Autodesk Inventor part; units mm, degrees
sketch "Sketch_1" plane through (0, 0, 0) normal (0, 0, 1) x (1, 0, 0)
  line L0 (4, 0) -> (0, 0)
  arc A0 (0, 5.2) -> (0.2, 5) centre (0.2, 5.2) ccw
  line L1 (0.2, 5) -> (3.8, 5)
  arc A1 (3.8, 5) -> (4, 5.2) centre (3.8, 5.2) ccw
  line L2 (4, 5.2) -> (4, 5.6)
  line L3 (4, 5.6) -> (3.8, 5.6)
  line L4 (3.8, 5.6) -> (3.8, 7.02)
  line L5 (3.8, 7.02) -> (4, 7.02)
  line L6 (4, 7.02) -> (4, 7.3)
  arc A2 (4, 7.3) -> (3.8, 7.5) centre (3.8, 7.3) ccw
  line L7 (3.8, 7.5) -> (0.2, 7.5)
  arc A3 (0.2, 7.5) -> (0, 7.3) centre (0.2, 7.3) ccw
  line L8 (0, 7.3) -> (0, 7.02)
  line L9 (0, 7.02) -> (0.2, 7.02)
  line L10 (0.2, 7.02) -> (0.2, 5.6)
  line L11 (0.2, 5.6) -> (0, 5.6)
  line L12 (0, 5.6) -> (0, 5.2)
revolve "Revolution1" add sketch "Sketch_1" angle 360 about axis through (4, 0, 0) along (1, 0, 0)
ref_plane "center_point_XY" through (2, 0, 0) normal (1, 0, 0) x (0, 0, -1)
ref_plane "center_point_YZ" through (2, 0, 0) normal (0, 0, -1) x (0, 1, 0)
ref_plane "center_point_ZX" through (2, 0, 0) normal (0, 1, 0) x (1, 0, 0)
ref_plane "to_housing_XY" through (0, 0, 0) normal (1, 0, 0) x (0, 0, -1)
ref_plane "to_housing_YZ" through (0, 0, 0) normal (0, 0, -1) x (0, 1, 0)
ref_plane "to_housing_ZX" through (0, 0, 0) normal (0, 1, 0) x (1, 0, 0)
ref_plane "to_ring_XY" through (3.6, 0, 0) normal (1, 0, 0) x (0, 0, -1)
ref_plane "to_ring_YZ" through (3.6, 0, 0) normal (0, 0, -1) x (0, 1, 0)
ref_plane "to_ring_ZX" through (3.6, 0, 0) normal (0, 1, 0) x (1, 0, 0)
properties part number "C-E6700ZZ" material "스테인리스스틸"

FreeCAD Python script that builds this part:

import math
import FreeCAD as App
import Part
import Sketcher

doc = App.newDocument("Part")
params = doc.addObject("Spreadsheet::Sheet", "Params")
for row, (alias, value) in enumerate([
    ("sketch1_radius", "0.2 mm"),
    ("sketch1_width", "3.6 mm"),
    ("sketch1_height", "0.4 mm"),
    ("sketch1_height2", "1.42 mm"),
    ("sketch1_height3", "0.28 mm"),
    ("revolution_angle", "360 deg"),
], start=1):
    params.set(f"A{row}", alias)
    params.set(f"B{row}", "=" + value)
    params.setAlias(f"B{row}", alias)

body = doc.addObject("PartDesign::Body", "Body")

# Sketch on XY plane
sketch1 = body.newObject("Sketcher::SketchObject", "Sketch")
sketch1.AttachmentSupport = (doc.getObject("XY_Plane"), [""])
sketch1.MapMode = "FlatFace"
sketch1.addGeometry(Part.LineSegment(App.Vector(0, 5.6, 0), App.Vector(0, 5.2, 0)), False)
sketch1.addGeometry(Part.ArcOfCircle(Part.Circle(App.Vector(0.2, 5.2, 0), App.Vector(0, 0, 1), 0.2), math.radians(180), math.radians(270)), False)
sketch1.addGeometry(Part.LineSegment(App.Vector(0.2, 5, 0), App.Vector(3.8, 5, 0)), False)
sketch1.addGeometry(Part.ArcOfCircle(Part.Circle(App.Vector(3.8, 5.2, 0), App.Vector(0, 0, 1), 0.2), math.radians(-90), math.radians(0)), False)
sketch1.addGeometry(Part.LineSegment(App.Vector(4, 5.2, 0), App.Vector(4, 5.6, 0)), False)
sketch1.addGeometry(Part.LineSegment(App.Vector(4, 5.6, 0), App.Vector(3.8, 5.6, 0)), False)
sketch1.addGeometry(Part.LineSegment(App.Vector(3.8, 5.6, 0), App.Vector(3.8, 7.02, 0)), False)
sketch1.addGeometry(Part.LineSegment(App.Vector(3.8, 7.02, 0), App.Vector(4, 7.02, 0)), False)
sketch1.addGeometry(Part.LineSegment(App.Vector(4, 7.02, 0), App.Vector(4, 7.3, 0)), False)
sketch1.addGeometry(Part.ArcOfCircle(Part.Circle(App.Vector(3.8, 7.3, 0), App.Vector(0, 0, 1), 0.2), math.radians(0), math.radians(90)), False)
sketch1.addGeometry(Part.LineSegment(App.Vector(3.8, 7.5, 0), App.Vector(0.2, 7.5, 0)), False)
sketch1.addGeometry(Part.ArcOfCircle(Part.Circle(App.Vector(0.2, 7.3, 0), App.Vector(0, 0, 1), 0.2), math.radians(90), math.radians(180)), False)
sketch1.addGeometry(Part.LineSegment(App.Vector(0, 7.3, 0), App.Vector(0, 7.02, 0)), False)
sketch1.addGeometry(Part.LineSegment(App.Vector(0, 7.02, 0), App.Vector(0.2, 7.02, 0)), False)
sketch1.addGeometry(Part.LineSegment(App.Vector(0.2, 7.02, 0), App.Vector(0.2, 5.6, 0)), False)
sketch1.addGeometry(Part.LineSegment(App.Vector(0.2, 5.6, 0), App.Vector(0, 5.6, 0)), False)
sketch1.addConstraint(Sketcher.Constraint("Tangent", 0, 2, 1, 1))
sketch1.addConstraint(Sketcher.Constraint("Tangent", 1, 2, 2, 1))
sketch1.addConstraint(Sketcher.Constraint("Tangent", 2, 2, 3, 1))
sketch1.addConstraint(Sketcher.Constraint("Tangent", 3, 2, 4, 1))
sketch1.addConstraint(Sketcher.Constraint("Coincident", 4, 2, 5, 1))
sketch1.addConstraint(Sketcher.Constraint("Coincident", 5, 2, 6, 1))
sketch1.addConstraint(Sketcher.Constraint("Coincident", 6, 2, 7, 1))
sketch1.addConstraint(Sketcher.Constraint("Coincident", 7, 2, 8, 1))
sketch1.addConstraint(Sketcher.Constraint("Tangent", 8, 2, 9, 1))
sketch1.addConstraint(Sketcher.Constraint("Tangent", 9, 2, 10, 1))
sketch1.addConstraint(Sketcher.Constraint("Tangent", 10, 2, 11, 1))
sketch1.addConstraint(Sketcher.Constraint("Tangent", 11, 2, 12, 1))
sketch1.addConstraint(Sketcher.Constraint("Coincident", 12, 2, 13, 1))
sketch1.addConstraint(Sketcher.Constraint("Coincident", 13, 2, 14, 1))
sketch1.addConstraint(Sketcher.Constraint("Coincident", 14, 2, 15, 1))
sketch1.addConstraint(Sketcher.Constraint("Coincident", 15, 2, 0, 1))
sketch1.addConstraint(Sketcher.Constraint("Vertical", 0))
sketch1.addConstraint(Sketcher.Constraint("Horizontal", 2))
sketch1.addConstraint(Sketcher.Constraint("Vertical", 4))
sketch1.addConstraint(Sketcher.Constraint("Horizontal", 5))
sketch1.addConstraint(Sketcher.Constraint("Vertical", 6))
sketch1.addConstraint(Sketcher.Constraint("Horizontal", 7))
sketch1.addConstraint(Sketcher.Constraint("Vertical", 8))
sketch1.addConstraint(Sketcher.Constraint("Horizontal", 10))
sketch1.addConstraint(Sketcher.Constraint("Vertical", 12))
sketch1.addConstraint(Sketcher.Constraint("Horizontal", 13))
sketch1.addConstraint(Sketcher.Constraint("Vertical", 14))
sketch1.addConstraint(Sketcher.Constraint("Horizontal", 15))
sketch1.addConstraint(Sketcher.Constraint("Equal", 1, 3))
sketch1.addConstraint(Sketcher.Constraint("Equal", 3, 9))
sketch1.addConstraint(Sketcher.Constraint("Equal", 9, 11))
sketch1.addConstraint(Sketcher.Constraint("PointOnObject", 0, 2, -2))
sketch1.addConstraint(Sketcher.Constraint("PointOnObject", 11, 2, -2))
sketch1.addConstraint(Sketcher.Constraint("Horizontal", 7, 2, 12, 2))
sketch1.addConstraint(Sketcher.Constraint("Horizontal", 5, 2, 14, 2))
sketch1.addConstraint(Sketcher.Constraint("Vertical", 3, 3, 9, 3))
sketch1.addConstraint(Sketcher.Constraint("Vertical", 2, 2, 5, 2))
sketch1.addConstraint(Sketcher.Constraint("Vertical", 10, 2, 13, 2))
sketch1.addConstraint(Sketcher.Constraint("Radius", 1, 0.2))
sketch1.addConstraint(Sketcher.Constraint("DistanceX", 2, 1, 2, 2, 3.6))
sketch1.addConstraint(Sketcher.Constraint("DistanceY", 0, 2, 0, 1, 0.4))
sketch1.addConstraint(Sketcher.Constraint("DistanceY", -1, 1, 1, 2, 5.0))
sketch1.addConstraint(Sketcher.Constraint("DistanceY", 6, 1, 6, 2, 1.42))
sketch1.addConstraint(Sketcher.Constraint("DistanceY", 8, 1, 8, 2, 0.28))
sketch1.setExpression("Constraints[38]", "Params.sketch1_radius")
sketch1.setExpression("Constraints[39]", "Params.sketch1_width")
sketch1.setExpression("Constraints[40]", "Params.sketch1_height")
sketch1.setExpression("Constraints[42]", "Params.sketch1_height2")
sketch1.setExpression("Constraints[43]", "Params.sketch1_height3")
revolution = body.newObject("PartDesign::Revolution", "Revolution")
revolution.Profile = sketch1
revolution.ReferenceAxis = (sketch1, ["H_Axis"])
revolution.setExpression("Angle", "Params.revolution_angle")

doc.recompute()
